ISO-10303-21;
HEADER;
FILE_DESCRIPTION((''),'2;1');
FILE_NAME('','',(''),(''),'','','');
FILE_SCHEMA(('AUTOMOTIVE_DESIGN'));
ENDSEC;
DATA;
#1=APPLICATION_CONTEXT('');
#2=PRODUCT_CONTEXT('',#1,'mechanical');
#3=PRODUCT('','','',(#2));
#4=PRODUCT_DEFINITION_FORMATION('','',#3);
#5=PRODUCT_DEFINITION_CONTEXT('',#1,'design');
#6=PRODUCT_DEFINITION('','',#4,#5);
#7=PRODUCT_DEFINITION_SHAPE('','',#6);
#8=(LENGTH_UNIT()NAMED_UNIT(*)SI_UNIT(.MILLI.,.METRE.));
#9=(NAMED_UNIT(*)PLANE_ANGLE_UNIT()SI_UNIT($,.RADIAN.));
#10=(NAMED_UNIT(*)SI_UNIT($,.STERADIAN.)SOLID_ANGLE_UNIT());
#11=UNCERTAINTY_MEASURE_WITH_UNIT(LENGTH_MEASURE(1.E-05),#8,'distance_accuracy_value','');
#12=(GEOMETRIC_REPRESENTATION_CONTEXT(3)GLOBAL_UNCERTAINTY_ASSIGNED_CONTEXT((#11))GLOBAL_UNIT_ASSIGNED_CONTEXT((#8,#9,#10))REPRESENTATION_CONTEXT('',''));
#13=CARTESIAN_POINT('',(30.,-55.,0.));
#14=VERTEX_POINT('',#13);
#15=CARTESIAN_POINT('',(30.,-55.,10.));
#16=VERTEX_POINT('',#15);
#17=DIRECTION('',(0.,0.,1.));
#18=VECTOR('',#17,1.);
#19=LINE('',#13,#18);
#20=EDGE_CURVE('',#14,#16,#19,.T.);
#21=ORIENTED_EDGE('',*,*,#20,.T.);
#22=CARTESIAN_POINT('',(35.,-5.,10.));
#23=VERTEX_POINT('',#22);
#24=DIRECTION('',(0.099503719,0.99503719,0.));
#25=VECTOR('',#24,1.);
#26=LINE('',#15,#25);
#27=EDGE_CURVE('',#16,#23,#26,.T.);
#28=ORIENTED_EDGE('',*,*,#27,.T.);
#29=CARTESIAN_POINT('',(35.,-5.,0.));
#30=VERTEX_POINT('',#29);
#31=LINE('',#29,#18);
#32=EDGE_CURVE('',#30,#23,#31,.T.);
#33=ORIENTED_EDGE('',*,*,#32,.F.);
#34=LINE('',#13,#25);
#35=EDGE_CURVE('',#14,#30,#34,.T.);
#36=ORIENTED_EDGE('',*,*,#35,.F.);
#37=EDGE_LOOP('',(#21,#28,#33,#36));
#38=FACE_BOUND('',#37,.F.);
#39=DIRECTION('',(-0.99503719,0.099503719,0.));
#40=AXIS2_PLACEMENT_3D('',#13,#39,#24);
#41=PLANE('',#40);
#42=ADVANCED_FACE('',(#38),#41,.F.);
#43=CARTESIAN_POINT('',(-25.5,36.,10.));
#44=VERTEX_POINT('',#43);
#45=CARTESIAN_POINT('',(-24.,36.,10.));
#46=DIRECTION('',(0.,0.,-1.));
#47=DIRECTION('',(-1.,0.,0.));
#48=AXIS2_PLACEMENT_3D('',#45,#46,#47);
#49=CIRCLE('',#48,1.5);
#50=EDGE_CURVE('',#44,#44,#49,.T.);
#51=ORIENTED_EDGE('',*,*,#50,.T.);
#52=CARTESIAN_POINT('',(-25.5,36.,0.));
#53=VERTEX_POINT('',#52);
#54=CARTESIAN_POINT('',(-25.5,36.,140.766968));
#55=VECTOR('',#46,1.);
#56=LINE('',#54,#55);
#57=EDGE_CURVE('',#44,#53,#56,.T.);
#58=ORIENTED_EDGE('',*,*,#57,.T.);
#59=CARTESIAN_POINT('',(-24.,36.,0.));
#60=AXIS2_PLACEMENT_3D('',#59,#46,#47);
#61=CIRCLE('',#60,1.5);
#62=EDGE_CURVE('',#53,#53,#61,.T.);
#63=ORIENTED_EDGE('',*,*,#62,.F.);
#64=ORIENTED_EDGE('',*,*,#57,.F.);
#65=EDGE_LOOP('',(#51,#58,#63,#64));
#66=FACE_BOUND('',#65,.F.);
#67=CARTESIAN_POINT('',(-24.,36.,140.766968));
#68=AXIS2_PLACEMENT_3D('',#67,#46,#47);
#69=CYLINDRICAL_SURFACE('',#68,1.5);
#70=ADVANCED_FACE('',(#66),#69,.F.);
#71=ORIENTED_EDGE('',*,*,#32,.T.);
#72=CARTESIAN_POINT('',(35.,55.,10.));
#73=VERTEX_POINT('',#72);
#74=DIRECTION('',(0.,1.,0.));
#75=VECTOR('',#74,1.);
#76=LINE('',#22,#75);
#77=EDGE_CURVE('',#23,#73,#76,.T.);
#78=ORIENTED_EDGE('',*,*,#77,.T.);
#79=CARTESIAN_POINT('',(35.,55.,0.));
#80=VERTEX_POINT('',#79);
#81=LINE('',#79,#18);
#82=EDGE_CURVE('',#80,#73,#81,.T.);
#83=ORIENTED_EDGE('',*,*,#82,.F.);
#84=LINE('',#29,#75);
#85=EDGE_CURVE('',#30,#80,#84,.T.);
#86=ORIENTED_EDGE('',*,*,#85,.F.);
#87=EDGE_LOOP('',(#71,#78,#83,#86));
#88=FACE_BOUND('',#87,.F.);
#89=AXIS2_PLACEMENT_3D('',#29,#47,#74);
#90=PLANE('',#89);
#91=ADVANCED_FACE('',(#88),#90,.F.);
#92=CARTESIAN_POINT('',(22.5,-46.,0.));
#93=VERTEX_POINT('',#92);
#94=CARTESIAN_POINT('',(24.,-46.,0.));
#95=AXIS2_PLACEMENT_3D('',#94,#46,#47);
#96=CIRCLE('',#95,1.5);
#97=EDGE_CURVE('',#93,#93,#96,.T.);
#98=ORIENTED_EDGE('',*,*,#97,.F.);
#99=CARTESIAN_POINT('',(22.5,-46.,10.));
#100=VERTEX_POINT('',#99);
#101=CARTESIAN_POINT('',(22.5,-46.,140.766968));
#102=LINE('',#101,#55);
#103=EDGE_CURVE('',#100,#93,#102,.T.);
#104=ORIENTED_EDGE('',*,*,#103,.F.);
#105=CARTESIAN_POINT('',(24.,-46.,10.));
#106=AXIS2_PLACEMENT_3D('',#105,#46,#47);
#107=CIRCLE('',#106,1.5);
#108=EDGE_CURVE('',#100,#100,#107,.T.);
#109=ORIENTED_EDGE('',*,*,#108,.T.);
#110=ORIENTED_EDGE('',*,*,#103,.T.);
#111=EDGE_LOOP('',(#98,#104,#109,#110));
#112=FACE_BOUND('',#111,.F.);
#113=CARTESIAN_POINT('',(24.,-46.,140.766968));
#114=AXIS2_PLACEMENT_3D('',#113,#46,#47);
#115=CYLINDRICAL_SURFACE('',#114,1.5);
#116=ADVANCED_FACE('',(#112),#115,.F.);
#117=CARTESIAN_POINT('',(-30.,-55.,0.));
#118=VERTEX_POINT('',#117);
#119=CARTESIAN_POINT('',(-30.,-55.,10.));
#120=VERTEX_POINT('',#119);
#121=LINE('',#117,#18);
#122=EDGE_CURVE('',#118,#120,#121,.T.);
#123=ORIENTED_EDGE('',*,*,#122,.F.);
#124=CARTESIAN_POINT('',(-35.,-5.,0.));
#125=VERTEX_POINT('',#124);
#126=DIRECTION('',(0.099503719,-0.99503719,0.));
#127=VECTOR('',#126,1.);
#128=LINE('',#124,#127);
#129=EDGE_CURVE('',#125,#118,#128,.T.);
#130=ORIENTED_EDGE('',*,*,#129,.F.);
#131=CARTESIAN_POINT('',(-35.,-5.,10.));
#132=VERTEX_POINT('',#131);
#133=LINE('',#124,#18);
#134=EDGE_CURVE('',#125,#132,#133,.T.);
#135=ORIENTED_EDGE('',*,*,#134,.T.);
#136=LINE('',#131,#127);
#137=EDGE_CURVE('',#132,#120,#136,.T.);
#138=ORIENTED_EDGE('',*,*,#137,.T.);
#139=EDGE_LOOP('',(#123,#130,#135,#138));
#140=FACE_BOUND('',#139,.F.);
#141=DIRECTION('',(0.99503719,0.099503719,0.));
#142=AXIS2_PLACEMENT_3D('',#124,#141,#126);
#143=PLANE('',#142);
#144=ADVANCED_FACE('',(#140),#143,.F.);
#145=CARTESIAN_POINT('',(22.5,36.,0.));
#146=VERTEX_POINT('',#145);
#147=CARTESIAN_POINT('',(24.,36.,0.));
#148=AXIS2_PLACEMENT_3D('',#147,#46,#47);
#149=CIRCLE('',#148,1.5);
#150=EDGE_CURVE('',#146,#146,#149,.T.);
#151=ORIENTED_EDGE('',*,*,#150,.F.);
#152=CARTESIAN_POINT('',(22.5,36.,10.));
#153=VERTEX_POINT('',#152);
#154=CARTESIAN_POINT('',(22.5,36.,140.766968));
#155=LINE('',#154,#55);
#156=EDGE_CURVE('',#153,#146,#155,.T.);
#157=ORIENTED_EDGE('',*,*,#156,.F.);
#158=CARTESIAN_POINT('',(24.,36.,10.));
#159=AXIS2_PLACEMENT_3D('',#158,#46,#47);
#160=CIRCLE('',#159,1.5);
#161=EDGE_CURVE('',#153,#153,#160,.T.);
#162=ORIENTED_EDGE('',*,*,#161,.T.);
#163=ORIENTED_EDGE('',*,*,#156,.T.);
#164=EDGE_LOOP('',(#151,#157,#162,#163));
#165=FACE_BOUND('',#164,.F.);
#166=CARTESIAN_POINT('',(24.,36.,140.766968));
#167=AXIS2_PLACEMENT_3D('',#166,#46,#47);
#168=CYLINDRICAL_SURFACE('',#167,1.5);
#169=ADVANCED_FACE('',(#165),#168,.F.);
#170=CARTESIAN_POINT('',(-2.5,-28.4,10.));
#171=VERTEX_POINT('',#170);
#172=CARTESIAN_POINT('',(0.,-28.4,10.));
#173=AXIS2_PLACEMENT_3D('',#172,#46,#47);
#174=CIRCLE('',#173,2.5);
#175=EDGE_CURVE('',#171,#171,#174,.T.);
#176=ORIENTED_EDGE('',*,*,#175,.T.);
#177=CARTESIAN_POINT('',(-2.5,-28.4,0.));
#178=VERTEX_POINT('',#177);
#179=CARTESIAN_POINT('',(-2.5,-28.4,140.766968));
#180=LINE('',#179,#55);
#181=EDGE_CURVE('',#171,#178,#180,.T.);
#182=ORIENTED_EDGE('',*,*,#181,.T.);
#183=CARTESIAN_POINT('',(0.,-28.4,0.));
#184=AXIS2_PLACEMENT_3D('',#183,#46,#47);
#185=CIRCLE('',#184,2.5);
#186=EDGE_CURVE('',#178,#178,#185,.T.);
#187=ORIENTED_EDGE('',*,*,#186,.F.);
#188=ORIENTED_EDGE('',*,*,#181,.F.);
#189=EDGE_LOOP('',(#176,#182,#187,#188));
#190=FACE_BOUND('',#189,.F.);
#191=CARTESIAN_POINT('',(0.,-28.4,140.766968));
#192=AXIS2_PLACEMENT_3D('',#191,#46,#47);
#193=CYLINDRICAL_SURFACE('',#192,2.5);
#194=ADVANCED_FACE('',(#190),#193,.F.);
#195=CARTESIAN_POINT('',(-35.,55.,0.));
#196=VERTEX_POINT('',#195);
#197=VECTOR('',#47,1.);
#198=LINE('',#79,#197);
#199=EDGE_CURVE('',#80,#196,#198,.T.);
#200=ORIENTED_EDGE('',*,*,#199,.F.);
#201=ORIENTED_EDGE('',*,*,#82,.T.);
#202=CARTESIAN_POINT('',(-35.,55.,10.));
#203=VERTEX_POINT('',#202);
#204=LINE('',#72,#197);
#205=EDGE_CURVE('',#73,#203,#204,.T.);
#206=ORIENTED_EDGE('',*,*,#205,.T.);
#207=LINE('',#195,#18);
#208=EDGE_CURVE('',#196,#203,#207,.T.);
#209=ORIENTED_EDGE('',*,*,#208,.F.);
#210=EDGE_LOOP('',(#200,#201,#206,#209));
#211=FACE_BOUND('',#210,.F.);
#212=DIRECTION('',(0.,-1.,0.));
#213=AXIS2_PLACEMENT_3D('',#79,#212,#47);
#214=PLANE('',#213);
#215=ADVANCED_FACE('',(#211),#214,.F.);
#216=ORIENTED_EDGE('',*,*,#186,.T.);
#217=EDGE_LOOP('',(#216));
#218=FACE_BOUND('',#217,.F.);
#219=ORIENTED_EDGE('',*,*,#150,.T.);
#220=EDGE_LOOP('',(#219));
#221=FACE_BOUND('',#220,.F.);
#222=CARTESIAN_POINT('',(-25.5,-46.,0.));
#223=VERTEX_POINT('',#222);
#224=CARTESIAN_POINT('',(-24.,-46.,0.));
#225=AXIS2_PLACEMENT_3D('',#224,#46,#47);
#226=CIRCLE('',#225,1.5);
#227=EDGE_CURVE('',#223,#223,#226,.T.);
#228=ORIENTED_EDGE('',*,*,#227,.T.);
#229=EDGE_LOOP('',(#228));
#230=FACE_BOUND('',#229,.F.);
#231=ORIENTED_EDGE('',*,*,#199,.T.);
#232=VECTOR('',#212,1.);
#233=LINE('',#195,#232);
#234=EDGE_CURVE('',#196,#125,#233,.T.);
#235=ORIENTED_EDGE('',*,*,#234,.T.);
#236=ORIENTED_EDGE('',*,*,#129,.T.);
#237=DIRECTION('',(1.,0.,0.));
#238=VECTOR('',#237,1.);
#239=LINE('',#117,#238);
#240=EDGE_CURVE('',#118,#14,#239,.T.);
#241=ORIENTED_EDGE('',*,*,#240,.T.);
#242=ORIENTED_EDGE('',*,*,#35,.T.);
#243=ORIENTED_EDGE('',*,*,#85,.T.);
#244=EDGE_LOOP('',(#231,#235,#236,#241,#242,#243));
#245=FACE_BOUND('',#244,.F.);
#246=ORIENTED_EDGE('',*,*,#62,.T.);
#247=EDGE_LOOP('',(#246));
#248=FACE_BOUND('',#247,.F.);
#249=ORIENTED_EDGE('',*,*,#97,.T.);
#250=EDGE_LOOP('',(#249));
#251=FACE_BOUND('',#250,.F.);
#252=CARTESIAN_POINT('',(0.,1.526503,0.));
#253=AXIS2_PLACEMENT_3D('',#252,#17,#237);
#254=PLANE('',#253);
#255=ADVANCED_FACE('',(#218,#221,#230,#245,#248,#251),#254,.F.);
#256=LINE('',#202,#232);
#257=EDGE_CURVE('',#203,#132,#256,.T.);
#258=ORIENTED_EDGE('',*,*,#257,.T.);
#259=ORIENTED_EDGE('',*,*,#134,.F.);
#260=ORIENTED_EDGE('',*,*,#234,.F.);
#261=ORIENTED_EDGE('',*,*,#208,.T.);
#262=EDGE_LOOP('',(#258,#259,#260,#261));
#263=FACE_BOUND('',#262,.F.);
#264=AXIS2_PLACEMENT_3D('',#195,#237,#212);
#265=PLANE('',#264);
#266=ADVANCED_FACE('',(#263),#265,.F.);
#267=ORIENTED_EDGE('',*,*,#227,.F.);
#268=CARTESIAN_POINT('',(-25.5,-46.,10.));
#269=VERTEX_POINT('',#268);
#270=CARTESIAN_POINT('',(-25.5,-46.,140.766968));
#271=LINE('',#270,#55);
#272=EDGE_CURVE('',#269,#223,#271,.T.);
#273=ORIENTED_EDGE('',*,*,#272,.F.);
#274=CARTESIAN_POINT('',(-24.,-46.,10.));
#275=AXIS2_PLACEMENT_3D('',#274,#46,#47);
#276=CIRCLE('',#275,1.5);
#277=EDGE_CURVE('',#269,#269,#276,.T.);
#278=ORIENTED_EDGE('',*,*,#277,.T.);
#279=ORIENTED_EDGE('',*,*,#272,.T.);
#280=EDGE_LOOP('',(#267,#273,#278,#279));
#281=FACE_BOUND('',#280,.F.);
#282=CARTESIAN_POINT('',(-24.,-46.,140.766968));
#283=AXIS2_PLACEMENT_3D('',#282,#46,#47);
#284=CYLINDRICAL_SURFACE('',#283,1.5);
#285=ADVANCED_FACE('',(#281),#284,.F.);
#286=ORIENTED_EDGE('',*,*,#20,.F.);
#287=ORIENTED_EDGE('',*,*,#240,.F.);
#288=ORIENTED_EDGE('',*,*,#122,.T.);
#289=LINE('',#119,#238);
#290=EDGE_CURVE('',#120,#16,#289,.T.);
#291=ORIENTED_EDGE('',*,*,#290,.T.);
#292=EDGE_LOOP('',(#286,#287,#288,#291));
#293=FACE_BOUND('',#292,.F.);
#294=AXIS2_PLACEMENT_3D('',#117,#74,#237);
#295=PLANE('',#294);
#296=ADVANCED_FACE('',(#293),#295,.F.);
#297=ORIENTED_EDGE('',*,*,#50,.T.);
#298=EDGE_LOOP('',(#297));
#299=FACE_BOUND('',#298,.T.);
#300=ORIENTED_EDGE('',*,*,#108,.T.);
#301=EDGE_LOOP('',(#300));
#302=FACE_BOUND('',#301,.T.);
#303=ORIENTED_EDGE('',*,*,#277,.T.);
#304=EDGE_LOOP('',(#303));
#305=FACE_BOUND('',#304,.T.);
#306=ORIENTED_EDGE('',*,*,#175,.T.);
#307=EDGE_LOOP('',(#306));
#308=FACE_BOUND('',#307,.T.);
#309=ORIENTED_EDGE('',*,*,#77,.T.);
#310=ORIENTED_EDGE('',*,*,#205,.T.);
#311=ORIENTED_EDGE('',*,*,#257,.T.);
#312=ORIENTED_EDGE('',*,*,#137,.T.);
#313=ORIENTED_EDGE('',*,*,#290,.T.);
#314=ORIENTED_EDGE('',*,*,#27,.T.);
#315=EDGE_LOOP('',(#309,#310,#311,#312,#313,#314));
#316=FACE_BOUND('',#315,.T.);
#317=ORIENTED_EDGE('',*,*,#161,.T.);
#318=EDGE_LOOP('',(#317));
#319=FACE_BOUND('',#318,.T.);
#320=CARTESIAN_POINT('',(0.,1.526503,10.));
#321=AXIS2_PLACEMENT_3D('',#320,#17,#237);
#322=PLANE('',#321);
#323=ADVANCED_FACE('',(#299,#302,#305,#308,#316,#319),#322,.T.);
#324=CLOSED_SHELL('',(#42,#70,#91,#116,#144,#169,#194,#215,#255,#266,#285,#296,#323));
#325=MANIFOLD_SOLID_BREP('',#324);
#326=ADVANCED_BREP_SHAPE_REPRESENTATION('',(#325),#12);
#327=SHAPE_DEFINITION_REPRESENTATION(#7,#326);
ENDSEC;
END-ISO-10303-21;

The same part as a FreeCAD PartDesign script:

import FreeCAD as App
import Part
import Sketcher
from FreeCAD import Vector
Q = App.Units.Quantity

doc = App.newDocument("Part")
body = doc.addObject("PartDesign::Body", "Body")

sketch1 = body.newObject("Sketcher::SketchObject", "Sketch")
sketch1.AttachmentSupport = (doc.getObject("XY_Plane"), [""])
sketch1.MapMode = "FlatFace"
sketch1.addGeometry([
    Part.LineSegment(Vector(35, -5, 0), Vector(35, 55, 0)),
    Part.LineSegment(Vector(35, 55, 0), Vector(-35, 55, 0)),
    Part.LineSegment(Vector(-35, 55, 0), Vector(-35, -5, 0)),
    Part.LineSegment(Vector(-35, -5, 0), Vector(-30, -55, 0)),
    Part.LineSegment(Vector(-30, -55, 0), Vector(30, -55, 0)),
    Part.LineSegment(Vector(30, -55, 0), Vector(35, -5, 0)),
], False)
sketch1.addConstraint([
    Sketcher.Constraint("Coincident", 0, 2, 1, 1),
    Sketcher.Constraint("Coincident", 1, 2, 2, 1),
    Sketcher.Constraint("Coincident", 2, 2, 3, 1),
    Sketcher.Constraint("Coincident", 3, 2, 4, 1),
    Sketcher.Constraint("Coincident", 4, 2, 5, 1),
    Sketcher.Constraint("Coincident", 5, 2, 0, 1),
    Sketcher.Constraint("Vertical", 0),
    Sketcher.Constraint("Horizontal", 1),
    Sketcher.Constraint("Vertical", 2),
    Sketcher.Constraint("Horizontal", 4),
    Sketcher.Constraint("Symmetric", 2, 2, 5, 2, -2),
    Sketcher.Constraint("Equal", 4, 0),
    Sketcher.Constraint("Equal", 3, 5),
    Sketcher.Constraint("DistanceX", 1, 2, 1, 1, Q("70 mm")),
    Sketcher.Constraint("DistanceX", 4, 1, 4, 2, Q("60 mm")),
    Sketcher.Constraint("DistanceY", -1, 1, 0, 2, Q("55 mm")),
    Sketcher.Constraint("DistanceY", 3, 2, -1, 1, Q("55 mm")),
])
pad1 = body.newObject("PartDesign::Pad", "Pad")
pad1.Profile = sketch1
pad1.Length = 10

sketch2 = body.newObject("Sketcher::SketchObject", "Sketch001")
sketch2.AttachmentSupport = (doc.getObject("XY_Plane"), [""])
sketch2.MapMode = "FlatFace"
sketch2.AttachmentOffset = App.Placement(Vector(0, 0, 10), App.Rotation())
sketch2.addGeometry(Part.Circle(Vector(0, -28.4, 0), Vector(0, 0, 1), 2.5), False)
sketch2.addConstraint([
    Sketcher.Constraint("PointOnObject", 0, 3, -2),
    Sketcher.Constraint("Diameter", 0, Q("5 mm")),
    Sketcher.Constraint("DistanceY", 0, 3, -1, 1, Q("28.4 mm")),
])
doc.recompute()
hole = body.newObject("PartDesign::Hole", "Hole")
hole.Profile = sketch2
hole.ThreadType = "None"
hole.Diameter = 5
hole.DepthType = "ThroughAll"

sketch3 = body.newObject("Sketcher::SketchObject", "Sketch002")
sketch3.AttachmentSupport = (doc.getObject("XY_Plane"), [""])
sketch3.MapMode = "FlatFace"
sketch3.AttachmentOffset = App.Placement(Vector(0, 0, 10), App.Rotation())
sketch3.addGeometry([
    Part.Circle(Vector(-24, 36, 0), Vector(0, 0, 1), 1.5),
    Part.Circle(Vector(24, 36, 0), Vector(0, 0, 1), 1.5),
    Part.Circle(Vector(24, -46, 0), Vector(0, 0, 1), 1.5),
    Part.Circle(Vector(-24, -46, 0), Vector(0, 0, 1), 1.5),
], False)
sketch3.addConstraint([
    Sketcher.Constraint("Equal", 0, 1),
    Sketcher.Constraint("Equal", 1, 2),
    Sketcher.Constraint("Equal", 2, 3),
    Sketcher.Constraint("Symmetric", 0, 3, 1, 3, -2),
    Sketcher.Constraint("Symmetric", 2, 3, 3, 3, -2),
    Sketcher.Constraint("Vertical", 1, 3, 2, 3),
    Sketcher.Constraint("Diameter", 0, Q("3 mm")),
    Sketcher.Constraint("DistanceX", 0, 3, -1, 1, Q("24 mm")),
    Sketcher.Constraint("DistanceY", -1, 1, 0, 3, Q("36 mm")),
    Sketcher.Constraint("DistanceY", 2, 3, -1, 1, Q("46 mm")),
])
doc.recompute()
hole2 = body.newObject("PartDesign::Hole", "Hole001")
hole2.Profile = sketch3
hole2.ThreadType = "None"
hole2.Diameter = 3
hole2.DepthType = "ThroughAll"

doc.recompute()
